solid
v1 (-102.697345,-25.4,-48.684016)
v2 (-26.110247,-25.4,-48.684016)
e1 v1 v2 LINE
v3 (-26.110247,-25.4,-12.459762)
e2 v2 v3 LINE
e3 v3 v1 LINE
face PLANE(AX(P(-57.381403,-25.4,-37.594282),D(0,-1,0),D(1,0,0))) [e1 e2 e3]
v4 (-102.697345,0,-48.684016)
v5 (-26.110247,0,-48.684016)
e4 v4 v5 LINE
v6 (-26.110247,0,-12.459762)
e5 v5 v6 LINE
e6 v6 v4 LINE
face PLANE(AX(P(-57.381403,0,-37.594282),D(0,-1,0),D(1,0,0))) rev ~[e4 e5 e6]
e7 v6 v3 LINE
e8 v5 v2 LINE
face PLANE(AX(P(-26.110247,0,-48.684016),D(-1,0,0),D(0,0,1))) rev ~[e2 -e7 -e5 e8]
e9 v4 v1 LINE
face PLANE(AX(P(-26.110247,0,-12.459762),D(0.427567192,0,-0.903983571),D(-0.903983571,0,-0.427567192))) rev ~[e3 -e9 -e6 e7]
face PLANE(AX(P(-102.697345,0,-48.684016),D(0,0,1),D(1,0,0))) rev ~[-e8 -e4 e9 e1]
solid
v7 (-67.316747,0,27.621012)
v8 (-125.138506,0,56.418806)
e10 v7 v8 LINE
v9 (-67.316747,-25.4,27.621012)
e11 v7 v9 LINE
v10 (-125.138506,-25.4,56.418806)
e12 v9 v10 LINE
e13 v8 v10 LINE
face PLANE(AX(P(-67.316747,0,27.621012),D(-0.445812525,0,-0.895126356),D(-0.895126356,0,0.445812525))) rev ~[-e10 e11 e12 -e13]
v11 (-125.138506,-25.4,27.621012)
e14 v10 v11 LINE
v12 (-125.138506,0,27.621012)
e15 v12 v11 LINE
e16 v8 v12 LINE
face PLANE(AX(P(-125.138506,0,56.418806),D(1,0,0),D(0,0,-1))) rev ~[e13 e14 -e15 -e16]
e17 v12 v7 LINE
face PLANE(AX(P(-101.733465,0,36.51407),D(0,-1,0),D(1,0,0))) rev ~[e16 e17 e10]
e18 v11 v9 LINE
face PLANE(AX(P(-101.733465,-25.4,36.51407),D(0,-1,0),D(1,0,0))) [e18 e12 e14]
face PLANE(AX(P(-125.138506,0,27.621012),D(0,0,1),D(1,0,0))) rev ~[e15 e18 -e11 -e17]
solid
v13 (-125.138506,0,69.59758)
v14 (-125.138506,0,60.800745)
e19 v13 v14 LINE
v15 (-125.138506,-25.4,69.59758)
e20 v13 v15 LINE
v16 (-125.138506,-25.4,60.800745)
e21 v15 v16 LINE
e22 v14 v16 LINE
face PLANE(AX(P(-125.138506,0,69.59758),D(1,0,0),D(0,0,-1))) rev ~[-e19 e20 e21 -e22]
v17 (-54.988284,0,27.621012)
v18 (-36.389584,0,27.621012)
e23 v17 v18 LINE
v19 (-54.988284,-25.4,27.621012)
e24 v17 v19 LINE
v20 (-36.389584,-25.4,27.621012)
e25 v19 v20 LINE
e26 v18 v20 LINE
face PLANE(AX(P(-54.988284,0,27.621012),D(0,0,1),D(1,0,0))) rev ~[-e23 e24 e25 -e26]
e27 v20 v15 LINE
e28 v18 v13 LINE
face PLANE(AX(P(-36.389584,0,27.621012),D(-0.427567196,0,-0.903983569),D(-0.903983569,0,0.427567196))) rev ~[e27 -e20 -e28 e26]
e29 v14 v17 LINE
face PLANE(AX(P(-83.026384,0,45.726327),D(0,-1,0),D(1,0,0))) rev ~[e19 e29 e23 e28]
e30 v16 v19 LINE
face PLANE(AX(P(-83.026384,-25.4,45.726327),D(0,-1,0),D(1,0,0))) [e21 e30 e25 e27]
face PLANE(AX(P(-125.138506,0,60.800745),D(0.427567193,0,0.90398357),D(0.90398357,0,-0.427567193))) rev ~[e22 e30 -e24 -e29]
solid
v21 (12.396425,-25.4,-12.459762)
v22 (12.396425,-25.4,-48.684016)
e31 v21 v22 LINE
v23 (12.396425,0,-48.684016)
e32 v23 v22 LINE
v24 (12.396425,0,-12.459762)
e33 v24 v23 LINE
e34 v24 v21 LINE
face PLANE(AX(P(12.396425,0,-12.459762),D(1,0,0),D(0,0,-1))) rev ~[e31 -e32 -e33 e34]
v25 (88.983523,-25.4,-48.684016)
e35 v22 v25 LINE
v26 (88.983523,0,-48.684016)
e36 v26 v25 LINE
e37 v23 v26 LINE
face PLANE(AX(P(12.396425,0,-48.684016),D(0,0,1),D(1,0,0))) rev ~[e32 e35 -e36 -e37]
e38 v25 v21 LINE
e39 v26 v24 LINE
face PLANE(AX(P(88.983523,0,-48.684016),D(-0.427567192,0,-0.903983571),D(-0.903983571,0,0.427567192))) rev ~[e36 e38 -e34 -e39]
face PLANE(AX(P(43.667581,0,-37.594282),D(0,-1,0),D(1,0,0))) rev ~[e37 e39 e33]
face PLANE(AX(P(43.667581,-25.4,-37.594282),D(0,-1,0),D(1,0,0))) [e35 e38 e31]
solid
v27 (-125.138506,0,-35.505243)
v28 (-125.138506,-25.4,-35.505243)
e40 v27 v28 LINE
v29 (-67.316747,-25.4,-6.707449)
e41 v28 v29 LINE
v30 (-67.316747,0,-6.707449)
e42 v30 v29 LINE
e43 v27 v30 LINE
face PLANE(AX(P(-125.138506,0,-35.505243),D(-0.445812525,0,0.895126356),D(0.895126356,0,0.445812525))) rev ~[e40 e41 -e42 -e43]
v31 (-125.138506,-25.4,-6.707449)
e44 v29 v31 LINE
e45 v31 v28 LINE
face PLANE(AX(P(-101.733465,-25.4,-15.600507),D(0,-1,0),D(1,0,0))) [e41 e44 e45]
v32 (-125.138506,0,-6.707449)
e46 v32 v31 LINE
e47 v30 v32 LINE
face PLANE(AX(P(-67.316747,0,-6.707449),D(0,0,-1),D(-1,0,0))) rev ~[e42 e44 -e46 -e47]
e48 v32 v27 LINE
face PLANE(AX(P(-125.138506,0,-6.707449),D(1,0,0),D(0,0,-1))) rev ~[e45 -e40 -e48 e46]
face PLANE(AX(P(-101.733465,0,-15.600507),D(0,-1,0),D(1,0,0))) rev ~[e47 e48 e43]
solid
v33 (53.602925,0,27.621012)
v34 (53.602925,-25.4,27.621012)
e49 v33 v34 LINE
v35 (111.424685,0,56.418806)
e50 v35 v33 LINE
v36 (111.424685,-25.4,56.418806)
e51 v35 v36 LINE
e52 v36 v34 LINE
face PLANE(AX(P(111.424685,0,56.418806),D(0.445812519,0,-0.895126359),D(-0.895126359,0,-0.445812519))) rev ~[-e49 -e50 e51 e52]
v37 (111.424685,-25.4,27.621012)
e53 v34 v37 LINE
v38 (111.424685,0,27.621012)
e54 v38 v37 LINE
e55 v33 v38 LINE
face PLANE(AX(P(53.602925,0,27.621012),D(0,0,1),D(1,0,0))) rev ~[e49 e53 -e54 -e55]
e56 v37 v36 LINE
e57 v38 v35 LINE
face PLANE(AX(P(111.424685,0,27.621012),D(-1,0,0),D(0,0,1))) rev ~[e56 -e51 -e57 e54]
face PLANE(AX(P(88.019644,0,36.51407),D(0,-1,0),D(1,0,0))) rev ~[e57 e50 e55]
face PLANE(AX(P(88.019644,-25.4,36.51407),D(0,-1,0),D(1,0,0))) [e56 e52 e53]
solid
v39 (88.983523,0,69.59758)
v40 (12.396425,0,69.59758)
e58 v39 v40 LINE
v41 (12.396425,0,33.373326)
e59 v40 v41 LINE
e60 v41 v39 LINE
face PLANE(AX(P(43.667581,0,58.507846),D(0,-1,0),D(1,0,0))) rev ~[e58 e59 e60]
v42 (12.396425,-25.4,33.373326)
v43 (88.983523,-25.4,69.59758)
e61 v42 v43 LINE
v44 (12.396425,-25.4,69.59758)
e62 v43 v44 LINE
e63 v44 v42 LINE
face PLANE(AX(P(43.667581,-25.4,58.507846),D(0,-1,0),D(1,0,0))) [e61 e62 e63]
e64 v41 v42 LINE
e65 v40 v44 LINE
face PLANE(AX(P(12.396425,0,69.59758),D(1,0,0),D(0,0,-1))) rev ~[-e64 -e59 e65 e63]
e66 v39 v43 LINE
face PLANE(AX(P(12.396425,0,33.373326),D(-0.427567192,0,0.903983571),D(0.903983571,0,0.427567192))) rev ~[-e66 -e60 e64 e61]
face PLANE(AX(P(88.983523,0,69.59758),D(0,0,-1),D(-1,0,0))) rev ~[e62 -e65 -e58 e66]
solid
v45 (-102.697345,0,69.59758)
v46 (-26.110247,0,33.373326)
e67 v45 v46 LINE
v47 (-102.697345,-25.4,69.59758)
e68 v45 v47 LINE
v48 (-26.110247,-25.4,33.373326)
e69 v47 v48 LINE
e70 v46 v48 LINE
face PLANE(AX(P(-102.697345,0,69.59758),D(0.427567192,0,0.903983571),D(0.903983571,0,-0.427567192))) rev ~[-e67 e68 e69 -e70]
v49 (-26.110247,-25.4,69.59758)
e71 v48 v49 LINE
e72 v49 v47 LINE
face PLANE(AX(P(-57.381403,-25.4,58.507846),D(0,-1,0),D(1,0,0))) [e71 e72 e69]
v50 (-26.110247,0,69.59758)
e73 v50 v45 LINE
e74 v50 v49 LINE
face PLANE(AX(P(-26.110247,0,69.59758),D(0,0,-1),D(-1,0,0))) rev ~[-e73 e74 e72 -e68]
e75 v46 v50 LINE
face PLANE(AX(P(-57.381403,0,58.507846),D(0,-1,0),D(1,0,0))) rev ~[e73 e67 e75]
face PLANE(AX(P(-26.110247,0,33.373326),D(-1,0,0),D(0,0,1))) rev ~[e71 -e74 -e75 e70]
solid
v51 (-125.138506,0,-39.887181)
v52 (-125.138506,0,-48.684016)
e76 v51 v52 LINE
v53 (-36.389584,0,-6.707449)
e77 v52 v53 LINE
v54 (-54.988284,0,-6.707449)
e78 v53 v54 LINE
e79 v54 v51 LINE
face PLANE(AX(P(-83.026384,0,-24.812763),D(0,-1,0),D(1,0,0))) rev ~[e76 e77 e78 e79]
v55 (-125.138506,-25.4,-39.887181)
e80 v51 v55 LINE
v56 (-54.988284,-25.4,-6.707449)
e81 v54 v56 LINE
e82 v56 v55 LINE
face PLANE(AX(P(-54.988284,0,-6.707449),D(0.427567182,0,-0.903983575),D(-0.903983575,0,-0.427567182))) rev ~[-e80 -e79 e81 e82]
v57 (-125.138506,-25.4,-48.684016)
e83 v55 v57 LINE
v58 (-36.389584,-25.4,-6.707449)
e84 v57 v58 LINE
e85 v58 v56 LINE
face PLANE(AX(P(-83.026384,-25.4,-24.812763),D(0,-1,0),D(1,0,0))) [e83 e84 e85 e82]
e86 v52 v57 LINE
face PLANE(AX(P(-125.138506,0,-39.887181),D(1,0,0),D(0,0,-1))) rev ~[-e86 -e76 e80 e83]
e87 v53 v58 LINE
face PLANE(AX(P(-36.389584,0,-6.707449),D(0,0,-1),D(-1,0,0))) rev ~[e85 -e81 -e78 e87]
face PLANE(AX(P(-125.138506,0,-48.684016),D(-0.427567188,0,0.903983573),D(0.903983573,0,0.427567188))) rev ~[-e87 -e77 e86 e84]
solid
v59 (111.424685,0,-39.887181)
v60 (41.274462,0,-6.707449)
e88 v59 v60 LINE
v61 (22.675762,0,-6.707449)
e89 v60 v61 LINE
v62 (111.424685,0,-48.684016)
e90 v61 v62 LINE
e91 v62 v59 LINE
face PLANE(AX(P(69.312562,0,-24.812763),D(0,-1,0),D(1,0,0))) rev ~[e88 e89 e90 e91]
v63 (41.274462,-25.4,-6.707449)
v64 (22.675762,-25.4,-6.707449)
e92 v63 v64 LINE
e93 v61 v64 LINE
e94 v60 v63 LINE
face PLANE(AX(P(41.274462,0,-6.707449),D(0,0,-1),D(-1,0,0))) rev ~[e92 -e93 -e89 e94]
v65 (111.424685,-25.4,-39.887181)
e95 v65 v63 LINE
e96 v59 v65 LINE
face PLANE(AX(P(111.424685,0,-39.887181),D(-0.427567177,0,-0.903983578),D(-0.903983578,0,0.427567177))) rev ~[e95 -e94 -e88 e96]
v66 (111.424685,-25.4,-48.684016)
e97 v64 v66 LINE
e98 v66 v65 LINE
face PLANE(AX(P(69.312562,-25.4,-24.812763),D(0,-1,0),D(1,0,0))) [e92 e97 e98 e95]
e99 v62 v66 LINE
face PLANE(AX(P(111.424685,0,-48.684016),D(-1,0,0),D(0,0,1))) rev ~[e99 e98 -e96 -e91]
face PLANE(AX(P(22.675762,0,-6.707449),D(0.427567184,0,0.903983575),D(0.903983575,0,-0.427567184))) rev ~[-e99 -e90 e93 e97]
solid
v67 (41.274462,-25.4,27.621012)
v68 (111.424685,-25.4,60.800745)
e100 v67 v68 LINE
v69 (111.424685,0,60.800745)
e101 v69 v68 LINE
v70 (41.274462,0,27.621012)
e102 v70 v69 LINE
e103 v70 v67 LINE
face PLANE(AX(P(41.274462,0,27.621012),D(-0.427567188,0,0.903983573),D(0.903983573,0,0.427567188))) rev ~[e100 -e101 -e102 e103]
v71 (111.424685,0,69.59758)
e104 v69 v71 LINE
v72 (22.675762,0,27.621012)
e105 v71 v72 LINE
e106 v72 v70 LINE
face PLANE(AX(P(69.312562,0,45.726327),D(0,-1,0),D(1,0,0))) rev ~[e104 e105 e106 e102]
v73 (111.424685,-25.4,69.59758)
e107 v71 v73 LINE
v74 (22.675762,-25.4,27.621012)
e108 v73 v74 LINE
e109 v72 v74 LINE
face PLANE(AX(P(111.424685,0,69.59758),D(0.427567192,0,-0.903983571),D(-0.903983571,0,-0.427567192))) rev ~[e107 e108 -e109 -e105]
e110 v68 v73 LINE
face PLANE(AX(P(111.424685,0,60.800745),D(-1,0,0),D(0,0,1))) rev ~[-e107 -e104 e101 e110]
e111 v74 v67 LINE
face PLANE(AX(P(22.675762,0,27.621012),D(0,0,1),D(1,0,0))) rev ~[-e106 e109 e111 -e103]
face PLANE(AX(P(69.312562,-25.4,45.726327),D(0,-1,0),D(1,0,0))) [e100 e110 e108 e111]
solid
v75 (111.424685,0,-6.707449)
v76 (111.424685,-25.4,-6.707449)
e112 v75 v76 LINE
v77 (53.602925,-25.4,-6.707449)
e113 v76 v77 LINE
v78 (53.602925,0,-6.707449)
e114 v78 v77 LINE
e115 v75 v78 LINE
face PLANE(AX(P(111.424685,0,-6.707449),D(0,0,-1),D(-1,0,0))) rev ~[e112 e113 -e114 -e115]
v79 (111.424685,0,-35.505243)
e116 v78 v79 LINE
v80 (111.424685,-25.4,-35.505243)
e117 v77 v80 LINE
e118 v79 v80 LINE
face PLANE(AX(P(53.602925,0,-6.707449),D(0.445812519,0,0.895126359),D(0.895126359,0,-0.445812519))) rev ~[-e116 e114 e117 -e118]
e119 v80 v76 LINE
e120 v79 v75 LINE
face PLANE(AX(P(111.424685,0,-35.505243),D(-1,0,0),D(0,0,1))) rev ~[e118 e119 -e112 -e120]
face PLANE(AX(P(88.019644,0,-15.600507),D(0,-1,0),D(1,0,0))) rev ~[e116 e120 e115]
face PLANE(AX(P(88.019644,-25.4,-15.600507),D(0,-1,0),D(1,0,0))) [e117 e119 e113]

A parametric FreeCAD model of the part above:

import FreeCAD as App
import Part
import Sketcher

V = App.Vector
Q = App.Units.Quantity


def add_polygon(sketch, points):
    """Adds a closed chain of lines whose ends are joined by coincident constraints."""
    first, n = sketch.GeometryCount, len(points)
    for a, b in zip(points, points[1:] + points[:1]):
        sketch.addGeometry(Part.LineSegment(App.Vector(*a, 0), App.Vector(*b, 0)), False)
    for i in range(n):
        sketch.addConstraint(Sketcher.Constraint("Coincident", first + i, 2, first + (i + 1) % n, 1))

doc = App.newDocument("Part")
body = doc.addObject("PartDesign::Body", "Body")
body.AllowCompound = True

# Sketch on XZ plane
sketch1 = doc.addObject("Sketcher::SketchObject", "Sketch")
body.addObject(sketch1)
sketch1.AttachmentSupport = (doc.XZ_Plane, [""])
sketch1.MapMode = "FlatFace"
add_polygon(sketch1, [(-36, 28), (-125, 70), (-125, 61), (-55, 28)])  # lines 0-3
add_polygon(sketch1, [(-26, 33), (-26, 70), (-103, 70)])  # lines 4-6
add_polygon(sketch1, [(-67, 28), (-125, 56), (-125, 28)])  # lines 7-9
add_polygon(sketch1, [(89, 70), (12, 70), (12, 33)])  # lines 10-12
add_polygon(sketch1, [(111, 70), (23, 28), (41, 28), (111, 61)])  # lines 13-16
add_polygon(sketch1, [(111, 28), (111, 56), (54, 28)])  # lines 17-19
add_polygon(sketch1, [(111, -36), (111, -7), (54, -7)])  # lines 20-22
add_polygon(sketch1, [(23, -7), (111, -49), (111, -40), (41, -7)])  # lines 23-26
add_polygon(sketch1, [(12, -12), (12, -49), (89, -49)])  # lines 27-29
add_polygon(sketch1, [(-26, -49), (-26, -12), (-103, -49)])  # lines 30-32
add_polygon(sketch1, [(-55, -7), (-125, -40), (-125, -49), (-36, -7)])  # lines 33-36
add_polygon(sketch1, [(-125, -36), (-67, -7), (-125, -7)])  # lines 37-39
sketch1.addConstraint(Sketcher.Constraint("Vertical", 1))
sketch1.addConstraint(Sketcher.Constraint("Horizontal", 3))
sketch1.addConstraint(Sketcher.Constraint("Vertical", 4))
sketch1.addConstraint(Sketcher.Constraint("Horizontal", 5))
sketch1.addConstraint(Sketcher.Constraint("Vertical", 8))
sketch1.addConstraint(Sketcher.Constraint("Horizontal", 9))
sketch1.addConstraint(Sketcher.Constraint("Horizontal", 10))
sketch1.addConstraint(Sketcher.Constraint("Vertical", 11))
sketch1.addConstraint(Sketcher.Constraint("Horizontal", 14))
sketch1.addConstraint(Sketcher.Constraint("Vertical", 16))
sketch1.addConstraint(Sketcher.Constraint("Vertical", 17))
sketch1.addConstraint(Sketcher.Constraint("Horizontal", 19))
sketch1.addConstraint(Sketcher.Constraint("Vertical", 20))
sketch1.addConstraint(Sketcher.Constraint("Horizontal", 21))
sketch1.addConstraint(Sketcher.Constraint("Vertical", 24))
sketch1.addConstraint(Sketcher.Constraint("Horizontal", 26))
sketch1.addConstraint(Sketcher.Constraint("Vertical", 27))
sketch1.addConstraint(Sketcher.Constraint("Horizontal", 28))
sketch1.addConstraint(Sketcher.Constraint("Vertical", 30))
sketch1.addConstraint(Sketcher.Constraint("Horizontal", 32))
sketch1.addConstraint(Sketcher.Constraint("Vertical", 34))
sketch1.addConstraint(Sketcher.Constraint("Horizontal", 36))
sketch1.addConstraint(Sketcher.Constraint("Horizontal", 38))
sketch1.addConstraint(Sketcher.Constraint("Vertical", 39))
sketch1.addConstraint(Sketcher.Constraint("Parallel", 0, 2))
sketch1.addConstraint(Sketcher.Constraint("Parallel", 2, 6))
sketch1.addConstraint(Sketcher.Constraint("Parallel", 12, 13))
sketch1.addConstraint(Sketcher.Constraint("Parallel", 13, 15))
sketch1.addConstraint(Sketcher.Constraint("Parallel", 7, 22))
sketch1.addConstraint(Sketcher.Constraint("Parallel", 6, 23))
sketch1.addConstraint(Sketcher.Constraint("Parallel", 23, 25))
sketch1.addConstraint(Sketcher.Constraint("Parallel", 25, 29))
sketch1.addConstraint(Sketcher.Constraint("Parallel", 15, 31))
sketch1.addConstraint(Sketcher.Constraint("Parallel", 31, 33))
sketch1.addConstraint(Sketcher.Constraint("Parallel", 33, 35))
sketch1.addConstraint(Sketcher.Constraint("Parallel", 18, 37))
sketch1.addConstraint(Sketcher.Constraint("Horizontal", 0, 2, 4, 2))
sketch1.addConstraint(Sketcher.Constraint("Horizontal", 3, 2, 8, 2))
sketch1.addConstraint(Sketcher.Constraint("Horizontal", 5, 2, 10, 2))
sketch1.addConstraint(Sketcher.Constraint("Horizontal", 6, 2, 11, 2))
sketch1.addConstraint(Sketcher.Constraint("Horizontal", 9, 2, 13, 2))
sketch1.addConstraint(Sketcher.Constraint("Horizontal", 1, 2, 15, 2))
sketch1.addConstraint(Sketcher.Constraint("Horizontal", 12, 2, 16, 2))
sketch1.addConstraint(Sketcher.Constraint("Horizontal", 7, 2, 17, 2))
sketch1.addConstraint(Sketcher.Constraint("Horizontal", 14, 2, 18, 2))
sketch1.addConstraint(Sketcher.Constraint("Horizontal", 21, 2, 25, 2))
sketch1.addConstraint(Sketcher.Constraint("Horizontal", 23, 2, 27, 2))
sketch1.addConstraint(Sketcher.Constraint("Horizontal", 29, 2, 30, 2))
sketch1.addConstraint(Sketcher.Constraint("Horizontal", 28, 2, 31, 2))
sketch1.addConstraint(Sketcher.Constraint("Horizontal", 24, 2, 33, 2))
sketch1.addConstraint(Sketcher.Constraint("Horizontal", 32, 2, 34, 2))
sketch1.addConstraint(Sketcher.Constraint("Horizontal", 26, 2, 35, 2))
sketch1.addConstraint(Sketcher.Constraint("Horizontal", 36, 2, 37, 2))
sketch1.addConstraint(Sketcher.Constraint("Horizontal", 22, 2, 39, 2))
sketch1.addConstraint(Sketcher.Constraint("Vertical", 1, 2, 7, 2))
sketch1.addConstraint(Sketcher.Constraint("Vertical", 16, 2, 17, 2))
sketch1.addConstraint(Sketcher.Constraint("Vertical", 19, 2, 20, 2))
sketch1.addConstraint(Sketcher.Constraint("Vertical", 18, 2, 21, 2))
sketch1.addConstraint(Sketcher.Constraint("Vertical", 22, 2, 23, 2))
sketch1.addConstraint(Sketcher.Constraint("Vertical", 14, 2, 25, 2))
sketch1.addConstraint(Sketcher.Constraint("Vertical", 13, 2, 26, 2))
sketch1.addConstraint(Sketcher.Constraint("Vertical", 11, 2, 27, 2))
sketch1.addConstraint(Sketcher.Constraint("Vertical", 12, 2, 28, 2))
sketch1.addConstraint(Sketcher.Constraint("Vertical", 6, 2, 30, 2))
sketch1.addConstraint(Sketcher.Constraint("Vertical", 5, 2, 31, 2))
sketch1.addConstraint(Sketcher.Constraint("Vertical", 8, 2, 33, 2))
sketch1.addConstraint(Sketcher.Constraint("Vertical", 9, 2, 37, 2))
sketch1.addConstraint(Sketcher.Constraint("Vertical", 34, 2, 38, 2))
sketch1.addConstraint(Sketcher.Constraint("DistanceX", 3, 1, 3, 2, Q("18.5987 mm")))
sketch1.addConstraint(Sketcher.Constraint("Distance", 18, Q("64.596199 mm")))
sketch1.addConstraint(Sketcher.Constraint("DistanceX", 9, 1, 9, 2, Q("57.821759 mm")))
sketch1.addConstraint(Sketcher.Constraint("DistanceX", 9, 2, 6, 2, Q("41.2065 mm")))
sketch1.addConstraint(Sketcher.Constraint("DistanceX", 11, 2, 18, 2, Q("41.2065 mm")))
sketch1.addConstraint(Sketcher.Constraint("DistanceX", 18, 2, 12, 2, Q("35.380598 mm")))
sketch1.addConstraint(Sketcher.Constraint("Distance", 0, Q("98.175371 mm")))
sketch1.addConstraint(Sketcher.Constraint("Distance", 6, Q("84.721781 mm")))
sketch1.addConstraint(Sketcher.Constraint("DistanceY", -1, 1, 0, 2, Q("69.59758 mm")))
sketch1.addConstraint(Sketcher.Constraint("DistanceX", -1, 1, 13, 2, Q("22.675762 mm")))
sketch1.addConstraint(Sketcher.Constraint("DistanceY", 20, 2, -1, 1, Q("6.707449 mm")))
sketch1.addConstraint(Sketcher.Constraint("DistanceX", 3, 2, 10, 2, Q("48.786009 mm")))
pad1 = doc.addObject("PartDesign::Pad", "Pad")
body.addObject(pad1)
pad1.Profile = sketch1
pad1.Length = Q("1 in")

doc.recompute()
